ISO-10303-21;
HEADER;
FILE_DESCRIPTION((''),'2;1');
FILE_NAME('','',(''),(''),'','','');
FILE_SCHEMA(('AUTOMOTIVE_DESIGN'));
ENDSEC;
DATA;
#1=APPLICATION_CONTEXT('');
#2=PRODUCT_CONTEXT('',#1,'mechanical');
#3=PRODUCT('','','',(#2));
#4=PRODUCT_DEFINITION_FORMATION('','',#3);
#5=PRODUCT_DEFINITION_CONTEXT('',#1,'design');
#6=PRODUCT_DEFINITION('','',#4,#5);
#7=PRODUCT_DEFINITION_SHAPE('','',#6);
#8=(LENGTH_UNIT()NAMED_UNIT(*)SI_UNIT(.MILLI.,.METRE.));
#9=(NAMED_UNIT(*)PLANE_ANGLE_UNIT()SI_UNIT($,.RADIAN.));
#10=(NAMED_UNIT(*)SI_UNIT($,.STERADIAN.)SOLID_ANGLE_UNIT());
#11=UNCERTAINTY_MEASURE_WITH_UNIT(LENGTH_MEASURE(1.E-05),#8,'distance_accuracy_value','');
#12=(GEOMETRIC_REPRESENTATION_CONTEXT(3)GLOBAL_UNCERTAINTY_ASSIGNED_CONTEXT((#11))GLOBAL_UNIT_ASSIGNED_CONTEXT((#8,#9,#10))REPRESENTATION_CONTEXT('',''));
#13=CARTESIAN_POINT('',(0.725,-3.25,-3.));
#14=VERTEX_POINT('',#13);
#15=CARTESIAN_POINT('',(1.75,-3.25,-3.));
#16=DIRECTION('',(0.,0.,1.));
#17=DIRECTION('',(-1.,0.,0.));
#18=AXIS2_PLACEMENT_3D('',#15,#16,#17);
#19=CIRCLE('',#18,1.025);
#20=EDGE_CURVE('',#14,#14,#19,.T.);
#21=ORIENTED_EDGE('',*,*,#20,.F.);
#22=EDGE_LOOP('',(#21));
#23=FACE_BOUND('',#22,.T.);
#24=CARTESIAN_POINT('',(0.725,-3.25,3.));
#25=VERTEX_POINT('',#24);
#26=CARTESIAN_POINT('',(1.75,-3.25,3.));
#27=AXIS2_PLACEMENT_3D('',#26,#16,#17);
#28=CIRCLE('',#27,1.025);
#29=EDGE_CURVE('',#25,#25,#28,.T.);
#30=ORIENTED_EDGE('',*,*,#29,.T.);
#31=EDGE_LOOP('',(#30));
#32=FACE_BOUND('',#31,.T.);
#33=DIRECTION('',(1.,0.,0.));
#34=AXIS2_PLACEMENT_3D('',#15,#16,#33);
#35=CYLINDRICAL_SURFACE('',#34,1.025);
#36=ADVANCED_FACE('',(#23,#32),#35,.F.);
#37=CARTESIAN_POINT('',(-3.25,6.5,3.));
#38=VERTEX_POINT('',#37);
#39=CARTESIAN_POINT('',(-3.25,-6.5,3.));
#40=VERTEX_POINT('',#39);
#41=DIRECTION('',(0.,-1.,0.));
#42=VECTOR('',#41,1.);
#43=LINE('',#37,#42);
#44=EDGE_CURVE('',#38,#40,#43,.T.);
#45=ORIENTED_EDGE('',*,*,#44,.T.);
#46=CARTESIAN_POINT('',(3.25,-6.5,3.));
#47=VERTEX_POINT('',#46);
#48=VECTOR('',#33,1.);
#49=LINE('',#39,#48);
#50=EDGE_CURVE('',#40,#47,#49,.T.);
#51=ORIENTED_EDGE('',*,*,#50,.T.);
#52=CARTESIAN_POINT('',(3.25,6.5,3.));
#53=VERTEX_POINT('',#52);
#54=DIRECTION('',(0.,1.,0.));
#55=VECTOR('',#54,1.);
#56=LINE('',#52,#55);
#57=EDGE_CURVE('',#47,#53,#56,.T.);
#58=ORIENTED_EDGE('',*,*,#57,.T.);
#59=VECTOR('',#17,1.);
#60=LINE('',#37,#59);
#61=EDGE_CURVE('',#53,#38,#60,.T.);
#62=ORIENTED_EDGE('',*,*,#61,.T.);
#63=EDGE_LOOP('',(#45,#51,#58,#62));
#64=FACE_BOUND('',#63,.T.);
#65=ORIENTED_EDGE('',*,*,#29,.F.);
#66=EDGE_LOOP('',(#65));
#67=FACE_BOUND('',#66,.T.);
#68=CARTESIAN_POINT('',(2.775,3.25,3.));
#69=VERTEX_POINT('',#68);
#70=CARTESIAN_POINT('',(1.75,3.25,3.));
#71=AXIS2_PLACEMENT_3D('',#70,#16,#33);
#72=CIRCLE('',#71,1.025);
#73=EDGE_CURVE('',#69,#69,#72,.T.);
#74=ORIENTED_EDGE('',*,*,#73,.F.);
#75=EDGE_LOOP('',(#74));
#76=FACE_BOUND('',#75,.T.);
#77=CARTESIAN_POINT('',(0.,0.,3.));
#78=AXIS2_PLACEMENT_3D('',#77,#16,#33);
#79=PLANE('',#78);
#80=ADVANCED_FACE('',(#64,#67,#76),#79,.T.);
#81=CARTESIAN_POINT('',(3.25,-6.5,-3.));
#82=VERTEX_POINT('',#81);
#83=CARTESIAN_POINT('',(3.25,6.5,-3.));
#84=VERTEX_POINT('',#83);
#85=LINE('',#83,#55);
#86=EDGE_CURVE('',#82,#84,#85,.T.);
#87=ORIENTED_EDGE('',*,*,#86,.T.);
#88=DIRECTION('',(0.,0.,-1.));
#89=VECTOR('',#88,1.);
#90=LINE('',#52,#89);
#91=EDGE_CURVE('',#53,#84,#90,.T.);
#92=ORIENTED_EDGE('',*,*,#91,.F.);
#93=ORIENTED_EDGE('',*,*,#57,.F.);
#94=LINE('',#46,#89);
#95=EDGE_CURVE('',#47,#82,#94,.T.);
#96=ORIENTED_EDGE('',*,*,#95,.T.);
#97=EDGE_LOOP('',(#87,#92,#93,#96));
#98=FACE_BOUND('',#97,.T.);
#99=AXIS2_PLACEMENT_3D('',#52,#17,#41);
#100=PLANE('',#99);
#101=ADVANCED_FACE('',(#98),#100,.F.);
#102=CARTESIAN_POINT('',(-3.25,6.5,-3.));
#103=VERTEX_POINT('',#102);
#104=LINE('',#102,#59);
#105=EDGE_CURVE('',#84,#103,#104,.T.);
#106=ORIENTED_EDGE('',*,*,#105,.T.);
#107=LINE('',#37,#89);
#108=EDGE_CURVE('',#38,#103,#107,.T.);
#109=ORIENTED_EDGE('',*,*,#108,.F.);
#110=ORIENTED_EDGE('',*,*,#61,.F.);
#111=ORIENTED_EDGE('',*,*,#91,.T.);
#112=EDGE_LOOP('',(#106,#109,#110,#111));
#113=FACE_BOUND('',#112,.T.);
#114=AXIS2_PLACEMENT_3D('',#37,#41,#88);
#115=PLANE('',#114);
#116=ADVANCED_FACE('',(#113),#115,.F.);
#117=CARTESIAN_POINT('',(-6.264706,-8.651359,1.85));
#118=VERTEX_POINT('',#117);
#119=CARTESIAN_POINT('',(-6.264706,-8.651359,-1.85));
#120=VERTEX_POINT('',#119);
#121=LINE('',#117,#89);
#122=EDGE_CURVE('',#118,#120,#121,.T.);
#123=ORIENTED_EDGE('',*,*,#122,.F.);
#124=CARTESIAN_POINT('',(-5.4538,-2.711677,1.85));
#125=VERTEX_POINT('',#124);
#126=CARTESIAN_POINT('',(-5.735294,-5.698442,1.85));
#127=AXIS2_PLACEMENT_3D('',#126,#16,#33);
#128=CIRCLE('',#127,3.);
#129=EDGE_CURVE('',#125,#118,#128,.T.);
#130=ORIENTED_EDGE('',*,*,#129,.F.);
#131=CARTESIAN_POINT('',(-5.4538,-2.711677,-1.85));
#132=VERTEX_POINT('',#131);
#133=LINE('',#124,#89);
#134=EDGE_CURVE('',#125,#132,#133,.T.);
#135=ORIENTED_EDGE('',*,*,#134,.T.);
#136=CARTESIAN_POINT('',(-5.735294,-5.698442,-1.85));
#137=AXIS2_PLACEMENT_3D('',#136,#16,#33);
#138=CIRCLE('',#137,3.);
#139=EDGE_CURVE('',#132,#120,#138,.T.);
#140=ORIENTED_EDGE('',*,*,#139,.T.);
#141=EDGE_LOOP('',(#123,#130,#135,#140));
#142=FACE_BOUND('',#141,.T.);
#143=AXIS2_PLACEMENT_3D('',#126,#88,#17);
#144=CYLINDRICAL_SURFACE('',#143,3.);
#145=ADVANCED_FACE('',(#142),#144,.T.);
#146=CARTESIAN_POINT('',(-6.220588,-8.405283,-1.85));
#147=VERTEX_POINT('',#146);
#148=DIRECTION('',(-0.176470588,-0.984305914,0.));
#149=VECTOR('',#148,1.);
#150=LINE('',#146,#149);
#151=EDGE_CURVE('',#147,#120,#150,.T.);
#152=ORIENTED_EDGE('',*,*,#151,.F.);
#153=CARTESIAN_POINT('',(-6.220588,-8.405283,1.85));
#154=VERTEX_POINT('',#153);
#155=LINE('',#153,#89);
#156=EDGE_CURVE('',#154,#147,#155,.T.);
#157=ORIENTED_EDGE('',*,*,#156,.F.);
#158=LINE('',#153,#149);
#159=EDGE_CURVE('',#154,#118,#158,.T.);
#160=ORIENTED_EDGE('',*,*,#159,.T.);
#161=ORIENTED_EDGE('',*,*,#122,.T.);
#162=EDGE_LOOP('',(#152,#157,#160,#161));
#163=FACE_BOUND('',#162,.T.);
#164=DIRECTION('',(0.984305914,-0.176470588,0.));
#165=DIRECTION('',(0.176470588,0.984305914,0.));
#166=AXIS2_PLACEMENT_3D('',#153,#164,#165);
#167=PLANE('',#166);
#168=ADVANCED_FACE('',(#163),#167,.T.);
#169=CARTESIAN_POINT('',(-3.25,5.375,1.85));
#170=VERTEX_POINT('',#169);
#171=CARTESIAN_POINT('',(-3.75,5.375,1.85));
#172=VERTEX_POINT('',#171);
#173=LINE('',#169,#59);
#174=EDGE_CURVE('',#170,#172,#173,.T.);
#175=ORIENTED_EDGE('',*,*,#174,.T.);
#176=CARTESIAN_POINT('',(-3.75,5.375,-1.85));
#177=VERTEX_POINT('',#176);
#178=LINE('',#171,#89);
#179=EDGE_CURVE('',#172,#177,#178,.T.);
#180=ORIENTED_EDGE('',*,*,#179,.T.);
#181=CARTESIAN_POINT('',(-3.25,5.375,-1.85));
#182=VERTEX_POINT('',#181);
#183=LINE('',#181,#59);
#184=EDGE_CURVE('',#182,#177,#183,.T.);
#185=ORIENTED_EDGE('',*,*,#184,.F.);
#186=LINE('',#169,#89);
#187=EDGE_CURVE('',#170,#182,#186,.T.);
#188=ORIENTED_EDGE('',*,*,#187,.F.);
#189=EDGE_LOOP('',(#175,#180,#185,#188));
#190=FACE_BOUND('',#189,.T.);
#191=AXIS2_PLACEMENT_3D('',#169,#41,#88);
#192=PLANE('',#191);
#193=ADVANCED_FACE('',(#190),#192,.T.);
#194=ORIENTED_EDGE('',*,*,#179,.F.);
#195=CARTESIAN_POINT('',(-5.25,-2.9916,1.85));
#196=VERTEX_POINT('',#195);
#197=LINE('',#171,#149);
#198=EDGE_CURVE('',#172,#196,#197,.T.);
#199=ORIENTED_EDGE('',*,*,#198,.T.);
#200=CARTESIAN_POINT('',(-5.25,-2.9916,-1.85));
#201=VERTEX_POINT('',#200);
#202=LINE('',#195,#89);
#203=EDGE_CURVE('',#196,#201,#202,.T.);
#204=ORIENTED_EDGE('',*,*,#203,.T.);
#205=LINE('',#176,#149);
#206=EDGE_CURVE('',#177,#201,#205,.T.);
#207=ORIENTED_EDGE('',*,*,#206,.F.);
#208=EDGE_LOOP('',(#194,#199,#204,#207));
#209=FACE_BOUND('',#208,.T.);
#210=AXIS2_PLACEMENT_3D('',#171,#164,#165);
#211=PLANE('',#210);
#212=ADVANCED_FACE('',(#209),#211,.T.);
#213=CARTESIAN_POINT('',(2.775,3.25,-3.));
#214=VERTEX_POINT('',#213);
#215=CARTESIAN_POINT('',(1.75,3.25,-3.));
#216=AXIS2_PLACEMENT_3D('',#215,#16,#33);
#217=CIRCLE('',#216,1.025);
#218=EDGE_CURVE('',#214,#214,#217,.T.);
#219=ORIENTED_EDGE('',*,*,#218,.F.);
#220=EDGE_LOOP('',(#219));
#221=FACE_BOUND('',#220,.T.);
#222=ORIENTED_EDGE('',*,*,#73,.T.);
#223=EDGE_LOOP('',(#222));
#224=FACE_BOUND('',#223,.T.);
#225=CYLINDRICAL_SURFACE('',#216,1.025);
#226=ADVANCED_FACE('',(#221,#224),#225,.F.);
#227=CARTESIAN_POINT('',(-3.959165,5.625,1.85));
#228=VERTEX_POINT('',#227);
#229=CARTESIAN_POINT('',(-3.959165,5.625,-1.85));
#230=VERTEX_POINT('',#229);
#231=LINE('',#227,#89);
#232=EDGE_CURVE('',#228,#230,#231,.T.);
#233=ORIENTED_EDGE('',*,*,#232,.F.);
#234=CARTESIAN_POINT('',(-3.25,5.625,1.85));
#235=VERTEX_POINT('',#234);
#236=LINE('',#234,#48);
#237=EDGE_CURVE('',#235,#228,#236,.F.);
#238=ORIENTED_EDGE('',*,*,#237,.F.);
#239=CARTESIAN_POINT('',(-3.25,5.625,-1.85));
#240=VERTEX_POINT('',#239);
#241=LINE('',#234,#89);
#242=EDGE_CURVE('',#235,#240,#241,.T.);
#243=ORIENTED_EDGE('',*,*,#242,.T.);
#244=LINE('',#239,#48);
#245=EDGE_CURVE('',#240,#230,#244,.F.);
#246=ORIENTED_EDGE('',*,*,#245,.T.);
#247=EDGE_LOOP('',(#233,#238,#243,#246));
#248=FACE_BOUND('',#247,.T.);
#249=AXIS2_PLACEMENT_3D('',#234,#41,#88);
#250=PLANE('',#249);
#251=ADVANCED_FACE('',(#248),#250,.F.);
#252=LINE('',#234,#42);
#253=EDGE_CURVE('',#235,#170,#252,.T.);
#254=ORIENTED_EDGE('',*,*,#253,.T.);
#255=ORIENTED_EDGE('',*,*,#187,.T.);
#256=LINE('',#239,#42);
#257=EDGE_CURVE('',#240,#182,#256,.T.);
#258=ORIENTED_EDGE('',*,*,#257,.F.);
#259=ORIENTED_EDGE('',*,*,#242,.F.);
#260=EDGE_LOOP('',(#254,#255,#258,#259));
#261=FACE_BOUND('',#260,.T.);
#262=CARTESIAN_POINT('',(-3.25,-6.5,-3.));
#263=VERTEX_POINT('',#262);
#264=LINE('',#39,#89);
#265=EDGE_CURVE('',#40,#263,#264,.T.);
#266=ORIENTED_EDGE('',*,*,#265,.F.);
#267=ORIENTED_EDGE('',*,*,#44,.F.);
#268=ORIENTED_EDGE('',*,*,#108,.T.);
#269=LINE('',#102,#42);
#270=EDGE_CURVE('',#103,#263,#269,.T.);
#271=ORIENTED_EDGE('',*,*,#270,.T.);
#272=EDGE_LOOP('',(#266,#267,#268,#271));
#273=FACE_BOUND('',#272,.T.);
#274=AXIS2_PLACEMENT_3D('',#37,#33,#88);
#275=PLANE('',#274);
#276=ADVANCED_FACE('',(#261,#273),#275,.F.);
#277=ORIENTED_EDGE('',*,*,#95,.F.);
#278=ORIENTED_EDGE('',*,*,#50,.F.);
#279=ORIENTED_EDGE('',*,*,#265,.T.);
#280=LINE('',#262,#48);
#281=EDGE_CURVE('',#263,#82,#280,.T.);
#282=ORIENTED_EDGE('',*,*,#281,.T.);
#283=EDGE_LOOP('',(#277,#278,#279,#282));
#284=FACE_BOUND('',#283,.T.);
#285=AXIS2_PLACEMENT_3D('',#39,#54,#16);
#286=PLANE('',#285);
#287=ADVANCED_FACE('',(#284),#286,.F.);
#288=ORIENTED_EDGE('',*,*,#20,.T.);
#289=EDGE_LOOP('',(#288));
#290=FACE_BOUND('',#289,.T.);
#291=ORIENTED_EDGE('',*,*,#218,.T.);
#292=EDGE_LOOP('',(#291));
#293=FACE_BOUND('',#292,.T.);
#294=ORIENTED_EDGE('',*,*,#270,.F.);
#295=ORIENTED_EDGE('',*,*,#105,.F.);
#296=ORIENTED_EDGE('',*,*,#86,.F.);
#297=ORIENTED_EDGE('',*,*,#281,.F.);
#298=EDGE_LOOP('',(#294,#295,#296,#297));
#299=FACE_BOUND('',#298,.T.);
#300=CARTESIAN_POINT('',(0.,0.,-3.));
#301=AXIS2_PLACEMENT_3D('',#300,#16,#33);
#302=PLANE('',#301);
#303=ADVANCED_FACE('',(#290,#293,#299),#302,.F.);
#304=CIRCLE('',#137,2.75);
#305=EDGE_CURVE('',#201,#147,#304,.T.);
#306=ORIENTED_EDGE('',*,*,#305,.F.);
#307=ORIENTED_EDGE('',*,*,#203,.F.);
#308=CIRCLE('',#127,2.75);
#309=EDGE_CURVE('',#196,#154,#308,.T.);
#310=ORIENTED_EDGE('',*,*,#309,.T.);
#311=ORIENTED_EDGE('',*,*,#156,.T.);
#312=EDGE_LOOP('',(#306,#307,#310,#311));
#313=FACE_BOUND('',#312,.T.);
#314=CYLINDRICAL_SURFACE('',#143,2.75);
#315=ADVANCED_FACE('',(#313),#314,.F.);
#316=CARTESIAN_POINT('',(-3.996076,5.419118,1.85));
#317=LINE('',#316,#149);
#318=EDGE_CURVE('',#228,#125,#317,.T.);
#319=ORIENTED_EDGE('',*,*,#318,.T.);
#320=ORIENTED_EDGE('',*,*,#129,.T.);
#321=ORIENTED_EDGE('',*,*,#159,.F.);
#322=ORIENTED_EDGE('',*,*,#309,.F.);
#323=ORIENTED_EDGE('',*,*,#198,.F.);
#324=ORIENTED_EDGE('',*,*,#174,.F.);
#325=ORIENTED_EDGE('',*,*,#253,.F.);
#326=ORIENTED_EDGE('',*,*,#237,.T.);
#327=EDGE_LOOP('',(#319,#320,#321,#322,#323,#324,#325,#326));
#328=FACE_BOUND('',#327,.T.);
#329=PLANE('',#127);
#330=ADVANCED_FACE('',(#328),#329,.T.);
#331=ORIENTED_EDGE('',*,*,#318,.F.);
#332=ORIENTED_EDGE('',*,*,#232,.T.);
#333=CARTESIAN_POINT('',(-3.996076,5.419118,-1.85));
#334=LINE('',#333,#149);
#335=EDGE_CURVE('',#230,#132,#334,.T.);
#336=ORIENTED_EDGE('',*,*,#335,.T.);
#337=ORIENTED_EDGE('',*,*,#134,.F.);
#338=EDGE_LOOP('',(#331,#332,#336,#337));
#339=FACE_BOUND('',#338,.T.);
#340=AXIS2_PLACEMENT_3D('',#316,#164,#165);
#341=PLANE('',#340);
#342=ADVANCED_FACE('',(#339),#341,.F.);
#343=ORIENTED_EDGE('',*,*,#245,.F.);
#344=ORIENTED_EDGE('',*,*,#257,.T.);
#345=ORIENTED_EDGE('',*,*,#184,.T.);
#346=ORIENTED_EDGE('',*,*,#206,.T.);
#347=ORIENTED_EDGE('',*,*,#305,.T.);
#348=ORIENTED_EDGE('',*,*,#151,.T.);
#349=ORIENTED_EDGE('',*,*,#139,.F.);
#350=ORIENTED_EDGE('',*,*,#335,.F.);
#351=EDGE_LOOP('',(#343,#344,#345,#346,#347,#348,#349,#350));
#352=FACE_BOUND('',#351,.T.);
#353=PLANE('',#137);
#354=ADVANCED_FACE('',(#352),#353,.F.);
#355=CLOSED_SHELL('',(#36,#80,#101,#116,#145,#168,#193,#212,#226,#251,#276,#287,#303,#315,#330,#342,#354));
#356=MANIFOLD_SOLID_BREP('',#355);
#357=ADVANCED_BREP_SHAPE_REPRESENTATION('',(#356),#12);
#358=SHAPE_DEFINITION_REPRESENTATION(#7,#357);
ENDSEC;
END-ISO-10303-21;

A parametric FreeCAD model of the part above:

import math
import FreeCAD as App
import Part
import Sketcher

V = App.Vector
Q = App.Units.Quantity


def add_polygon(sketch, points):
    """Adds a closed chain of lines whose ends are joined by coincident constraints."""
    first, n = sketch.GeometryCount, len(points)
    for a, b in zip(points, points[1:] + points[:1]):
        sketch.addGeometry(Part.LineSegment(App.Vector(*a, 0), App.Vector(*b, 0)), False)
    for i in range(n):
        sketch.addConstraint(Sketcher.Constraint("Coincident", first + i, 2, first + (i + 1) % n, 1))

doc = App.newDocument("Part")
body = doc.addObject("PartDesign::Body", "Body")

sketch1 = body.newObject("Sketcher::SketchObject", "Sketch")
sketch1.AttachmentSupport = (doc.getObject("XY_Plane"), [""])
sketch1.MapMode = "FlatFace"
add_polygon(sketch1, [(-3, 6), (-3, -6), (3, -6), (3, 6)])
sketch1.addConstraint([
    Sketcher.Constraint("Vertical", 0),
    Sketcher.Constraint("Horizontal", 1),
    Sketcher.Constraint("Vertical", 2),
    Sketcher.Constraint("Horizontal", 3),
    Sketcher.Constraint("Symmetric", 0, 2, 2, 2, -1, 1),
    Sketcher.Constraint("DistanceY", 0, 2, 0, 1, Q("13 mm")),
    Sketcher.Constraint("DistanceX", 1, 1, 1, 2, Q("6.5 mm")),
])
pad1 = body.newObject("PartDesign::Pad", "Pad")
pad1.Profile = sketch1
pad1.Length = 6
pad1.Midplane = True

sketch2 = body.newObject("Sketcher::SketchObject", "Sketch001")
sketch2.AttachmentSupport = (doc.getObject("XY_Plane"), [""])
sketch2.MapMode = "FlatFace"
sketch2.AttachmentOffset = App.Placement(V(0, 0, 3), App.Rotation())
sketch2.addGeometry([
    Part.Circle(V(1.8, 3.2, 0), V(0, 0, 1), 1),
    Part.Circle(V(1.8, -3.2, 0), V(0, 0, 1), 1),
], False)
sketch2.addConstraint([
    Sketcher.Constraint("Equal", 0, 1),
    Sketcher.Constraint("Symmetric", 0, 3, 1, 3, -1),
    Sketcher.Constraint("Diameter", 0, Q("2.05 mm")),
    Sketcher.Constraint("DistanceY", 1, 3, 0, 3, Q("6.5 mm")),
    Sketcher.Constraint("DistanceX", -1, 1, 0, 3, Q("1.75 mm")),
])
pocket1 = body.newObject("PartDesign::Pocket", "Pocket")
pocket1.Profile = sketch2
pocket1.Type = "ThroughAll"

sketch3 = body.newObject("Sketcher::SketchObject", "Sketch002")
sketch3.AttachmentSupport = (doc.getObject("XY_Plane"), [""])
sketch3.MapMode = "FlatFace"
sketch3.addGeometry([
    Part.LineSegment(V(-3.75, 5.38, 0), V(-3.25, 5.38, 0)),
    Part.LineSegment(V(-3.25, 5.38, 0), V(-3.25, 5.62, 0)),
    Part.LineSegment(V(-3.25, 5.62, 0), V(-3.96, 5.62, 0)),
    Part.LineSegment(V(-3.96, 5.62, 0), V(-5.45, -2.71, 0)),
    Part.ArcOfCircle(Part.Circle(V(-5.74, -5.7, 0), V(0, 0, 1), 3), math.radians(85), math.radians(260)),
    Part.LineSegment(V(-6.26, -8.65, 0), V(-6.22, -8.41, 0)),
    Part.ArcOfCircle(Part.Circle(V(-5.74, -5.7, 0), V(0, 0, 1), 2.75), math.radians(80), math.radians(260)),
    Part.LineSegment(V(-5.25, -2.99, 0), V(-3.75, 5.38, 0)),
], False)
sketch3.addConstraint([
    Sketcher.Constraint("Coincident", 0, 2, 1, 1),
    Sketcher.Constraint("Coincident", 1, 2, 2, 1),
    Sketcher.Constraint("Coincident", 2, 2, 3, 1),
    Sketcher.Constraint("Coincident", 3, 2, 4, 1),
    Sketcher.Constraint("Coincident", 4, 2, 5, 1),
    Sketcher.Constraint("Coincident", 5, 2, 6, 2),
    Sketcher.Constraint("Coincident", 6, 1, 7, 1),
    Sketcher.Constraint("Coincident", 7, 2, 0, 1),
    Sketcher.Constraint("Horizontal", 0),
    Sketcher.Constraint("Vertical", 1),
    Sketcher.Constraint("Horizontal", 2),
    Sketcher.Constraint("Coincident", 6, 3, 4, 3),
    Sketcher.Constraint("Parallel", 3, 5),
    Sketcher.Constraint("Parallel", 5, 7),
    Sketcher.Constraint("Radius", 4, Q("3 mm")),
    Sketcher.Constraint("Radius", 6, Q("2.75 mm")),
    Sketcher.Constraint("DistanceX", 0, 1, 0, 2, Q("0.5 mm")),
    Sketcher.Constraint("Distance", 7, Q("8.5 mm")),
    Sketcher.Constraint("DistanceY", 1, 1, 1, 2, Q("0.25 mm")),
    Sketcher.Constraint("DistanceX", 6, 1, 7, 2, Q("1.5 mm")),
    Sketcher.Constraint("DistanceX", 0, 2, -1, 1, Q("3.25 mm")),
    Sketcher.Constraint("DistanceY", -1, 1, 0, 2, Q("5.375 mm")),
    Sketcher.Constraint("Distance", 3, Q("8.4696 mm")),
    Sketcher.Constraint("DistanceX", 3, 2, -1, 1, Q("5.4538 mm")),
    Sketcher.Constraint("DistanceY", 4, 2, -1, 1, Q("8.651359 mm")),
])
pad2 = body.newObject("PartDesign::Pad", "Pad001")
pad2.Profile = sketch3
pad2.Length = 3.7
pad2.Midplane = True

doc.recompute()
